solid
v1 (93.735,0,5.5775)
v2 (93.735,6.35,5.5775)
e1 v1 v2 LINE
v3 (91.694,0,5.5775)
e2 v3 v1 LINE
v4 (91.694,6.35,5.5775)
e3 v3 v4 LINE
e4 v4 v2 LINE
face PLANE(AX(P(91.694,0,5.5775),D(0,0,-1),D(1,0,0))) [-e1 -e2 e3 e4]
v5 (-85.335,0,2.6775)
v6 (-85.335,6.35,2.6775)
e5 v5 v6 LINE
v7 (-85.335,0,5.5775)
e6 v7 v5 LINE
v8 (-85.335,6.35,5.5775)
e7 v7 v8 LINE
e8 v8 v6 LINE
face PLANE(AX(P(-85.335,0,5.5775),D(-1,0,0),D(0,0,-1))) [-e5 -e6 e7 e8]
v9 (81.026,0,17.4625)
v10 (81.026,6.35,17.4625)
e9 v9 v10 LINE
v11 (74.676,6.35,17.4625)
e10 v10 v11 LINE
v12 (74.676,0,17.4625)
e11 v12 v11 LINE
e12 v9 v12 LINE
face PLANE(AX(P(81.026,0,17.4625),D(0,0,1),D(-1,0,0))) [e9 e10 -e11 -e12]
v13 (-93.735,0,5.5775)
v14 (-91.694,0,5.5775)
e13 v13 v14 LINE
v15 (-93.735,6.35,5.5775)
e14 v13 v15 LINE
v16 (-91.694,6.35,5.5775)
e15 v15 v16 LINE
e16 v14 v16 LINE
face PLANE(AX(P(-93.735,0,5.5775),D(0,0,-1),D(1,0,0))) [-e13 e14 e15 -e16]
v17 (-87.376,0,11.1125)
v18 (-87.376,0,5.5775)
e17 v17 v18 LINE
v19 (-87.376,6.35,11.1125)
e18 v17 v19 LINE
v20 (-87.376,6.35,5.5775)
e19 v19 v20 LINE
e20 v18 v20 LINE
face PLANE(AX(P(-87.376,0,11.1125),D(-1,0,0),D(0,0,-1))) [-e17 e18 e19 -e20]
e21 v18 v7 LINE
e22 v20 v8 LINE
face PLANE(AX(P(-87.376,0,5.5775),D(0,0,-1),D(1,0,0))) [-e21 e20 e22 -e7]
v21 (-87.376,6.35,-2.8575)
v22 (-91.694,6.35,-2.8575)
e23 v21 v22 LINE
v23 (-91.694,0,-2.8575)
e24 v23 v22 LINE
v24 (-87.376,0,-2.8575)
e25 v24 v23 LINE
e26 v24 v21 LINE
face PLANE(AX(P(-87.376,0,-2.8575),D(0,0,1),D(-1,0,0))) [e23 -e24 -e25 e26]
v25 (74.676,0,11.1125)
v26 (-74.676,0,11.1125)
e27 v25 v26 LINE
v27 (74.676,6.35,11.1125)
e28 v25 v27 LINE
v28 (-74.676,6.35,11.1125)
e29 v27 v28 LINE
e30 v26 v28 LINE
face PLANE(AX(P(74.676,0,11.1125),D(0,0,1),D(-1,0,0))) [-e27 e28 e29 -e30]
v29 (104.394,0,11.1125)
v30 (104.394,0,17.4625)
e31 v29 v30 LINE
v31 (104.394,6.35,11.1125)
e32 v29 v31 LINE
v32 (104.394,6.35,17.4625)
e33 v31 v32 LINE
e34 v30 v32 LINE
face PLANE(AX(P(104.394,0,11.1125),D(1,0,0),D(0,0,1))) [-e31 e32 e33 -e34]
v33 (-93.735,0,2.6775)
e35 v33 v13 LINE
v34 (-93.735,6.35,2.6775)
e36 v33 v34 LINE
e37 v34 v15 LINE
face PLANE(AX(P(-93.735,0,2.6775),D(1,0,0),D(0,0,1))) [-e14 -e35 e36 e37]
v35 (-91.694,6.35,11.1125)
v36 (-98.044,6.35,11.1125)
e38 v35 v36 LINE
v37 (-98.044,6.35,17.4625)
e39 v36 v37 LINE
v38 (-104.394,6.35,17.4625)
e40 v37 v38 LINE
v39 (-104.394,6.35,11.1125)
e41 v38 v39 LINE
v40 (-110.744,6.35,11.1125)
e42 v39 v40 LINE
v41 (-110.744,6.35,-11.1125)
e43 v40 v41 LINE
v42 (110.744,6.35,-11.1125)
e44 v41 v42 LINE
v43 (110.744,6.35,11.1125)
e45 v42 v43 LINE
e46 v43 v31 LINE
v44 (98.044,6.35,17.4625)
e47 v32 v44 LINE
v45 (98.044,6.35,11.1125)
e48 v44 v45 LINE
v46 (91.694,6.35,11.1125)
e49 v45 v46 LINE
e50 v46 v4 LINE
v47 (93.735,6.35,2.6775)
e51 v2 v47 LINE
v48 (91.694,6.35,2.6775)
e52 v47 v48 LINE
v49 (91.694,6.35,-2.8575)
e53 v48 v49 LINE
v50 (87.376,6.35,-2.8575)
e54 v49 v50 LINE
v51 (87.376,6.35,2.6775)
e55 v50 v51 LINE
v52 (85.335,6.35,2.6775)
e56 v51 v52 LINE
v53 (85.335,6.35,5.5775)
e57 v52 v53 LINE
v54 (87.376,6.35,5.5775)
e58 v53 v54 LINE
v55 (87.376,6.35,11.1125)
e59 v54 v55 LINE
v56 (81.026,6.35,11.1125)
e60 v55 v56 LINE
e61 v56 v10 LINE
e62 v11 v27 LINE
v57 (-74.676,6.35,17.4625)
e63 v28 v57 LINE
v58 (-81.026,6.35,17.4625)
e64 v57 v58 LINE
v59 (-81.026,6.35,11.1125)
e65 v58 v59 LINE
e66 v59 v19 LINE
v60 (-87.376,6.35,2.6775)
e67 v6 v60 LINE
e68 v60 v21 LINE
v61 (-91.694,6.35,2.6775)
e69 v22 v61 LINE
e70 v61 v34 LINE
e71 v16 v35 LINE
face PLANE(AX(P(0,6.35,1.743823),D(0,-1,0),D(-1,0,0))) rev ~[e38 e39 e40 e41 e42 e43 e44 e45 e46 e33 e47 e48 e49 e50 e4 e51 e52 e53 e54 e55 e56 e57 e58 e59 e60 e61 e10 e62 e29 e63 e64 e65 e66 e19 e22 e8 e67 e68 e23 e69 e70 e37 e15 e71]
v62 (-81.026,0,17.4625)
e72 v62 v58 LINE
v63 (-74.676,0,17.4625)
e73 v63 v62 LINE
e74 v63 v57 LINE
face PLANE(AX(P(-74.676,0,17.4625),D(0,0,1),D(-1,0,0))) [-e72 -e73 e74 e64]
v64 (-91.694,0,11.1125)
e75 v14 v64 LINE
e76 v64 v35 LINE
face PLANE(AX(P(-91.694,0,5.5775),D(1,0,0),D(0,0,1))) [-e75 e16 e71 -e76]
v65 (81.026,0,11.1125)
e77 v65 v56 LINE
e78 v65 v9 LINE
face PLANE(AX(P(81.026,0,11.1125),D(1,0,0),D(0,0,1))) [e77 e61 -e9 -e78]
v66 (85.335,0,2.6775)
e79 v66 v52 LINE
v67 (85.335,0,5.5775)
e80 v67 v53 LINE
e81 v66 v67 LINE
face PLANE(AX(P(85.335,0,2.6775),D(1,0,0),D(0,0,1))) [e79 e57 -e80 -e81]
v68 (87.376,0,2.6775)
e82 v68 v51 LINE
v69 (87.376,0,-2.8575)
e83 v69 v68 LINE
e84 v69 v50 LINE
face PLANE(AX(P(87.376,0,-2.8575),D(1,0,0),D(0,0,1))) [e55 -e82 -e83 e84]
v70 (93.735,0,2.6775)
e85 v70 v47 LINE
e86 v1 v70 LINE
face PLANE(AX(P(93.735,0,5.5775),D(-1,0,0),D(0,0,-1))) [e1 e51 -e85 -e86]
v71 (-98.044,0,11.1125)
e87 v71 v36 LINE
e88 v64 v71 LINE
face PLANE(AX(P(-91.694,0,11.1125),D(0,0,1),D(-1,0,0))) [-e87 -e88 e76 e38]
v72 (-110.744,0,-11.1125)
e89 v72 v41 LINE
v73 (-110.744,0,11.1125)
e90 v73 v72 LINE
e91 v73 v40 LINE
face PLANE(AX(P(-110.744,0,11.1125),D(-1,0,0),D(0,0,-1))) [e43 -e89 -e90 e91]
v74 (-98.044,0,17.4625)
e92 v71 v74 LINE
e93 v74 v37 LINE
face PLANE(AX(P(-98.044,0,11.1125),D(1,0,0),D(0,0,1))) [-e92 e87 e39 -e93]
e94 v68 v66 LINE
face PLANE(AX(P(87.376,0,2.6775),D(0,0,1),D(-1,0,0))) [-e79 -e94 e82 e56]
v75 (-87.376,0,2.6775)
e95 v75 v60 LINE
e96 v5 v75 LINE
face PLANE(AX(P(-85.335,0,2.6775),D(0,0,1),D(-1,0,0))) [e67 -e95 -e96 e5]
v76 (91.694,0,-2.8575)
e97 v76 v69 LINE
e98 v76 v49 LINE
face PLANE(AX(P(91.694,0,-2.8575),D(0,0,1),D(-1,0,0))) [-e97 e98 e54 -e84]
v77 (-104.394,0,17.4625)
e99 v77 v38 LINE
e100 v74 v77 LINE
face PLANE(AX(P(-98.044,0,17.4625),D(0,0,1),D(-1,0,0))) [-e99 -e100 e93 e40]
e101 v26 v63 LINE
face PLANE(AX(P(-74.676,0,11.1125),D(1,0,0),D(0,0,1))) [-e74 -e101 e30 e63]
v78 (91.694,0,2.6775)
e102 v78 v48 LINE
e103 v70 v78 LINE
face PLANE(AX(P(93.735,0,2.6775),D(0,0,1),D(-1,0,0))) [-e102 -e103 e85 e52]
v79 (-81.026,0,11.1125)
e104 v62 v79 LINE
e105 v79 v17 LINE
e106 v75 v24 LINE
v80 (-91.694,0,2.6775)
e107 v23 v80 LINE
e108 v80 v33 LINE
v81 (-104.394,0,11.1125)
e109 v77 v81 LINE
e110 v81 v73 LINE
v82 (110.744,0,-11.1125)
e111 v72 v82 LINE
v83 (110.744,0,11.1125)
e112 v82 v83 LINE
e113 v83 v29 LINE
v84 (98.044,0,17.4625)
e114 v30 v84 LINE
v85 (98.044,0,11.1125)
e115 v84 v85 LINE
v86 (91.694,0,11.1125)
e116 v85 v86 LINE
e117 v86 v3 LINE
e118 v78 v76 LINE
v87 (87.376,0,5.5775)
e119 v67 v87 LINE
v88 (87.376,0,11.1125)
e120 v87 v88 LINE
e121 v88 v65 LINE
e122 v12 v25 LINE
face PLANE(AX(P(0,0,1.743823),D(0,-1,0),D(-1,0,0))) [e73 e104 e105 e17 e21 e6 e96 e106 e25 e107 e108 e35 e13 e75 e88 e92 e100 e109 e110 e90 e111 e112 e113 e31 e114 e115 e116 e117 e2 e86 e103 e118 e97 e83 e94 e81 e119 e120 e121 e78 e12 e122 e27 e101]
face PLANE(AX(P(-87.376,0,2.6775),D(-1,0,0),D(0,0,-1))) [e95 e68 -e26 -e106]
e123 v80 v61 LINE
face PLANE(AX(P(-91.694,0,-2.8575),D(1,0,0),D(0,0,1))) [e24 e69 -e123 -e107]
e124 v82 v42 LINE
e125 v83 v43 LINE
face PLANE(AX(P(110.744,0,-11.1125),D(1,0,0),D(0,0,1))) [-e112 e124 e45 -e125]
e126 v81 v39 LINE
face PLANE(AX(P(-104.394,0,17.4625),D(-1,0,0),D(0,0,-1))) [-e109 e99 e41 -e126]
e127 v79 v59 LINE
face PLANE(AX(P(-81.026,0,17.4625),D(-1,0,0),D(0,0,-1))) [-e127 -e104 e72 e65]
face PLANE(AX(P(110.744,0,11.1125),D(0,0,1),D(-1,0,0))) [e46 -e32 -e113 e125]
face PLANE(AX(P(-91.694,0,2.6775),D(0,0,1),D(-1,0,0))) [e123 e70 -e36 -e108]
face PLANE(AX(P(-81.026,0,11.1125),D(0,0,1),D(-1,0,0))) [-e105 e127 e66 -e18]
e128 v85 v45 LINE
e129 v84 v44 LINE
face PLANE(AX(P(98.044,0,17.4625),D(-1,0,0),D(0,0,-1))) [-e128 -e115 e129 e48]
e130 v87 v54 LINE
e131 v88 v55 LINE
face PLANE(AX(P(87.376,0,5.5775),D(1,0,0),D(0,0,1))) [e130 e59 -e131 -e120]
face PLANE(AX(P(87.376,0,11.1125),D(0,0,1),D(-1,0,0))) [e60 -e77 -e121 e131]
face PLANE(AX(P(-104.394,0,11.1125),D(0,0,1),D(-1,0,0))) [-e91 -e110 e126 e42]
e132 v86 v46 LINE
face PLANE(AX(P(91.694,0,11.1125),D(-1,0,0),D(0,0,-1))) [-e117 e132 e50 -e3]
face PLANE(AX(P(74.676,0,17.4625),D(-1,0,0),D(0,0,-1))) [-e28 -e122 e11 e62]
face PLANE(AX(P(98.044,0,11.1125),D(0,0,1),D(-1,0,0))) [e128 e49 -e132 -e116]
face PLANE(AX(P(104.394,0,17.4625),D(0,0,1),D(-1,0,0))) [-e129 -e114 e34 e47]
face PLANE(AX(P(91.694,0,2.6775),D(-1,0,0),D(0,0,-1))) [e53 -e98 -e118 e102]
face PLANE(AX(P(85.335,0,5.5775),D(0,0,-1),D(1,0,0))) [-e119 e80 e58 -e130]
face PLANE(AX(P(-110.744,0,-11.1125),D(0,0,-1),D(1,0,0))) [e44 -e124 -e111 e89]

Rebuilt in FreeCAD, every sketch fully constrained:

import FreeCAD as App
import Part
import Sketcher

V = App.Vector
Q = App.Units.Quantity


def add_polygon(sketch, points):
    """Adds a closed chain of lines whose ends are joined by coincident constraints."""
    first, n = sketch.GeometryCount, len(points)
    for a, b in zip(points, points[1:] + points[:1]):
        sketch.addGeometry(Part.LineSegment(App.Vector(*a, 0), App.Vector(*b, 0)), False)
    for i in range(n):
        sketch.addConstraint(Sketcher.Constraint("Coincident", first + i, 2, first + (i + 1) % n, 1))

doc = App.newDocument("Part")
body = doc.addObject("PartDesign::Body", "Body")

# Sketch on XZ plane
sketch1 = body.newObject("Sketcher::SketchObject", "Sketch")
sketch1.AttachmentSupport = (doc.getObject("XZ_Plane"), [""])
sketch1.MapMode = "FlatFace"
add_polygon(sketch1, [(81, 17.5), (81, 11.1), (87.4, 11.1), (87.4, 5.6), (85.3, 5.6), (85.3, 2.7), (87.4, 2.7), (87.4, -2.9), (91.7, -2.9), (91.7, 2.7), (93.7, 2.7), (93.7, 5.6), (91.7, 5.6), (91.7, 11.1), (98, 11.1), (98, 17.5), (104.4, 17.5), (104.4, 11.1), (110.7, 11.1), (110.7, -11.1), (-110.7, -11.1), (-110.7, 11.1), (-104.4, 11.1), (-104.4, 17.5), (-98, 17.5), (-98, 11.1), (-91.7, 11.1), (-91.7, 5.6), (-93.7, 5.6), (-93.7, 2.7), (-91.7, 2.7), (-91.7, -2.9), (-87.4, -2.9), (-87.4, 2.7), (-85.3, 2.7), (-85.3, 5.6), (-87.4, 5.6), (-87.4, 11.1), (-81, 11.1), (-81, 17.5), (-74.7, 17.5), (-74.7, 11.1), (74.7, 11.1), (74.7, 17.5)])  # lines 0-43
sketch1.addConstraint([
    Sketcher.Constraint("Vertical", 0),
    Sketcher.Constraint("Horizontal", 1),
    Sketcher.Constraint("Vertical", 2),
    Sketcher.Constraint("Horizontal", 3),
    Sketcher.Constraint("Vertical", 4),
    Sketcher.Constraint("Horizontal", 5),
    Sketcher.Constraint("Vertical", 6),
    Sketcher.Constraint("Horizontal", 7),
    Sketcher.Constraint("Vertical", 8),
    Sketcher.Constraint("Horizontal", 9),
    Sketcher.Constraint("Vertical", 10),
    Sketcher.Constraint("Horizontal", 11),
    Sketcher.Constraint("Vertical", 12),
    Sketcher.Constraint("Horizontal", 13),
    Sketcher.Constraint("Vertical", 14),
    Sketcher.Constraint("Horizontal", 15),
    Sketcher.Constraint("Vertical", 16),
    Sketcher.Constraint("Horizontal", 17),
    Sketcher.Constraint("Vertical", 18),
    Sketcher.Constraint("Horizontal", 19),
    Sketcher.Constraint("Vertical", 20),
    Sketcher.Constraint("Horizontal", 21),
    Sketcher.Constraint("Vertical", 22),
    Sketcher.Constraint("Horizontal", 23),
    Sketcher.Constraint("Vertical", 24),
    Sketcher.Constraint("Horizontal", 25),
    Sketcher.Constraint("Vertical", 26),
    Sketcher.Constraint("Horizontal", 27),
    Sketcher.Constraint("Vertical", 28),
    Sketcher.Constraint("Horizontal", 29),
    Sketcher.Constraint("Vertical", 30),
    Sketcher.Constraint("Horizontal", 31),
    Sketcher.Constraint("Vertical", 32),
    Sketcher.Constraint("Horizontal", 33),
    Sketcher.Constraint("Vertical", 34),
    Sketcher.Constraint("Horizontal", 35),
    Sketcher.Constraint("Vertical", 36),
    Sketcher.Constraint("Horizontal", 37),
    Sketcher.Constraint("Vertical", 38),
    Sketcher.Constraint("Horizontal", 39),
    Sketcher.Constraint("Vertical", 40),
    Sketcher.Constraint("Horizontal", 41),
    Sketcher.Constraint("Vertical", 42),
    Sketcher.Constraint("Horizontal", 43),
    Sketcher.Constraint("Symmetric", 17, 2, 19, 2, -1, 1),
    Sketcher.Constraint("Symmetric", 16, 2, 21, 2, -2),
    Sketcher.Constraint("Symmetric", 14, 2, 23, 2, -2),
    Sketcher.Constraint("Symmetric", 12, 2, 25, 2, -2),
    Sketcher.Constraint("Symmetric", 10, 2, 27, 2, -2),
    Sketcher.Constraint("Symmetric", 8, 2, 29, 2, -2),
    Sketcher.Constraint("Symmetric", 6, 2, 31, 2, -2),
    Sketcher.Constraint("Symmetric", 4, 2, 33, 2, -2),
    Sketcher.Constraint("Symmetric", 2, 2, 35, 2, -2),
    Sketcher.Constraint("Symmetric", 0, 2, 37, 2, -2),
    Sketcher.Constraint("Symmetric", 39, 2, 42, 2, -2),
    Sketcher.Constraint("Horizontal", 5, 2, 8, 2),
    Sketcher.Constraint("Horizontal", 3, 2, 10, 2),
    Sketcher.Constraint("Horizontal", 1, 2, 12, 2),
    Sketcher.Constraint("Horizontal", 13, 2, 16, 2),
    Sketcher.Constraint("Horizontal", 23, 2, 38, 2),
    Sketcher.Constraint("Horizontal", 37, 2, 40, 2),
    Sketcher.Constraint("Vertical", 2, 2, 5, 2),
    Sketcher.Constraint("Vertical", 8, 2, 11, 2),
    Sketcher.Constraint("Equal", 5, 9),
    Sketcher.Constraint("Equal", 1, 13),
    Sketcher.Constraint("Equal", 13, 15),
    Sketcher.Constraint("Equal", 15, 17),
    Sketcher.Constraint("Equal", 37, 39),
    Sketcher.Constraint("Equal", 43, 0),
    Sketcher.Constraint("Equal", 2, 6),
    Sketcher.Constraint("DistanceX", 1, 1, 1, 2, Q("0.25 in")),
    Sketcher.Constraint("DistanceX", 7, 1, 7, 2, Q("0.17 in")),
    Sketcher.Constraint("DistanceX", 19, 2, 19, 1, Q("8.72 in")),
    Sketcher.Constraint("DistanceY", 18, 2, 18, 1, Q("0.875 in")),
    Sketcher.Constraint("DistanceY", 6, 2, 1, 2, Q("0.55 in")),
    Sketcher.Constraint("DistanceX", 3, 2, 3, 1, 2.041),
    Sketcher.Constraint("DistanceY", 2, 2, 2, 1, 5.535),
])
pad1 = body.newObject("PartDesign::Pad", "Pad")
pad1.Profile = sketch1
pad1.Length = Q("0.25 in")
pad1.Reversed = True

doc.recompute()
